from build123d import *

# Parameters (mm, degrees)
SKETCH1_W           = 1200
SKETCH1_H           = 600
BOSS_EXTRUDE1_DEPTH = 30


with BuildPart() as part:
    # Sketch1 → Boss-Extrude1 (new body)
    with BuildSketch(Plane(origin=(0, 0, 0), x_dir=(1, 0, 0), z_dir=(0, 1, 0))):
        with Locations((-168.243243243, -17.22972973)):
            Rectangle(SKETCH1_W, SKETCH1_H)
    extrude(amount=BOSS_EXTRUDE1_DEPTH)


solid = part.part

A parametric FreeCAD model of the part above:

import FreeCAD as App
import Part
import Sketcher

V = App.Vector


def add_polygon(sketch, points):
    """Adds a closed chain of lines whose ends are joined by coincident constraints."""
    first, n = sketch.GeometryCount, len(points)
    for a, b in zip(points, points[1:] + points[:1]):
        sketch.addGeometry(Part.LineSegment(App.Vector(*a, 0), App.Vector(*b, 0)), False)
    for i in range(n):
        sketch.addConstraint(Sketcher.Constraint("Coincident", first + i, 2, first + (i + 1) % n, 1))

doc = App.newDocument("Part")
body = doc.addObject("PartDesign::Body", "Body")

# Sketch on XZ plane
sketch1 = body.newObject("Sketcher::SketchObject", "Sketch")
sketch1.AttachmentSupport = (doc.getObject("XZ_Plane"), [""])
sketch1.MapMode = "FlatFace"
add_polygon(sketch1, [(-768.243243, -282.77027), (-768.243243, 317.22973), (431.756757, 317.22973), (431.756757, -282.77027)])  # lines 0-3
sketch1.addConstraint([
    Sketcher.Constraint("Vertical", 0),
    Sketcher.Constraint("Horizontal", 1),
    Sketcher.Constraint("Vertical", 2),
    Sketcher.Constraint("Horizontal", 3),
    Sketcher.Constraint("DistanceX", 1, 1, 1, 2, 1200.0),
    Sketcher.Constraint("DistanceY", 0, 1, 0, 2, 600.0),
    Sketcher.Constraint("DistanceY", -1, 1, 0, 2, 317.22973),
    Sketcher.Constraint("DistanceX", 0, 2, -1, 1, 768.243243),
])
pad1 = body.newObject("PartDesign::Pad", "Pad")
pad1.Profile = sketch1
pad1.Length = 30
pad1.Reversed = True

doc.recompute()
